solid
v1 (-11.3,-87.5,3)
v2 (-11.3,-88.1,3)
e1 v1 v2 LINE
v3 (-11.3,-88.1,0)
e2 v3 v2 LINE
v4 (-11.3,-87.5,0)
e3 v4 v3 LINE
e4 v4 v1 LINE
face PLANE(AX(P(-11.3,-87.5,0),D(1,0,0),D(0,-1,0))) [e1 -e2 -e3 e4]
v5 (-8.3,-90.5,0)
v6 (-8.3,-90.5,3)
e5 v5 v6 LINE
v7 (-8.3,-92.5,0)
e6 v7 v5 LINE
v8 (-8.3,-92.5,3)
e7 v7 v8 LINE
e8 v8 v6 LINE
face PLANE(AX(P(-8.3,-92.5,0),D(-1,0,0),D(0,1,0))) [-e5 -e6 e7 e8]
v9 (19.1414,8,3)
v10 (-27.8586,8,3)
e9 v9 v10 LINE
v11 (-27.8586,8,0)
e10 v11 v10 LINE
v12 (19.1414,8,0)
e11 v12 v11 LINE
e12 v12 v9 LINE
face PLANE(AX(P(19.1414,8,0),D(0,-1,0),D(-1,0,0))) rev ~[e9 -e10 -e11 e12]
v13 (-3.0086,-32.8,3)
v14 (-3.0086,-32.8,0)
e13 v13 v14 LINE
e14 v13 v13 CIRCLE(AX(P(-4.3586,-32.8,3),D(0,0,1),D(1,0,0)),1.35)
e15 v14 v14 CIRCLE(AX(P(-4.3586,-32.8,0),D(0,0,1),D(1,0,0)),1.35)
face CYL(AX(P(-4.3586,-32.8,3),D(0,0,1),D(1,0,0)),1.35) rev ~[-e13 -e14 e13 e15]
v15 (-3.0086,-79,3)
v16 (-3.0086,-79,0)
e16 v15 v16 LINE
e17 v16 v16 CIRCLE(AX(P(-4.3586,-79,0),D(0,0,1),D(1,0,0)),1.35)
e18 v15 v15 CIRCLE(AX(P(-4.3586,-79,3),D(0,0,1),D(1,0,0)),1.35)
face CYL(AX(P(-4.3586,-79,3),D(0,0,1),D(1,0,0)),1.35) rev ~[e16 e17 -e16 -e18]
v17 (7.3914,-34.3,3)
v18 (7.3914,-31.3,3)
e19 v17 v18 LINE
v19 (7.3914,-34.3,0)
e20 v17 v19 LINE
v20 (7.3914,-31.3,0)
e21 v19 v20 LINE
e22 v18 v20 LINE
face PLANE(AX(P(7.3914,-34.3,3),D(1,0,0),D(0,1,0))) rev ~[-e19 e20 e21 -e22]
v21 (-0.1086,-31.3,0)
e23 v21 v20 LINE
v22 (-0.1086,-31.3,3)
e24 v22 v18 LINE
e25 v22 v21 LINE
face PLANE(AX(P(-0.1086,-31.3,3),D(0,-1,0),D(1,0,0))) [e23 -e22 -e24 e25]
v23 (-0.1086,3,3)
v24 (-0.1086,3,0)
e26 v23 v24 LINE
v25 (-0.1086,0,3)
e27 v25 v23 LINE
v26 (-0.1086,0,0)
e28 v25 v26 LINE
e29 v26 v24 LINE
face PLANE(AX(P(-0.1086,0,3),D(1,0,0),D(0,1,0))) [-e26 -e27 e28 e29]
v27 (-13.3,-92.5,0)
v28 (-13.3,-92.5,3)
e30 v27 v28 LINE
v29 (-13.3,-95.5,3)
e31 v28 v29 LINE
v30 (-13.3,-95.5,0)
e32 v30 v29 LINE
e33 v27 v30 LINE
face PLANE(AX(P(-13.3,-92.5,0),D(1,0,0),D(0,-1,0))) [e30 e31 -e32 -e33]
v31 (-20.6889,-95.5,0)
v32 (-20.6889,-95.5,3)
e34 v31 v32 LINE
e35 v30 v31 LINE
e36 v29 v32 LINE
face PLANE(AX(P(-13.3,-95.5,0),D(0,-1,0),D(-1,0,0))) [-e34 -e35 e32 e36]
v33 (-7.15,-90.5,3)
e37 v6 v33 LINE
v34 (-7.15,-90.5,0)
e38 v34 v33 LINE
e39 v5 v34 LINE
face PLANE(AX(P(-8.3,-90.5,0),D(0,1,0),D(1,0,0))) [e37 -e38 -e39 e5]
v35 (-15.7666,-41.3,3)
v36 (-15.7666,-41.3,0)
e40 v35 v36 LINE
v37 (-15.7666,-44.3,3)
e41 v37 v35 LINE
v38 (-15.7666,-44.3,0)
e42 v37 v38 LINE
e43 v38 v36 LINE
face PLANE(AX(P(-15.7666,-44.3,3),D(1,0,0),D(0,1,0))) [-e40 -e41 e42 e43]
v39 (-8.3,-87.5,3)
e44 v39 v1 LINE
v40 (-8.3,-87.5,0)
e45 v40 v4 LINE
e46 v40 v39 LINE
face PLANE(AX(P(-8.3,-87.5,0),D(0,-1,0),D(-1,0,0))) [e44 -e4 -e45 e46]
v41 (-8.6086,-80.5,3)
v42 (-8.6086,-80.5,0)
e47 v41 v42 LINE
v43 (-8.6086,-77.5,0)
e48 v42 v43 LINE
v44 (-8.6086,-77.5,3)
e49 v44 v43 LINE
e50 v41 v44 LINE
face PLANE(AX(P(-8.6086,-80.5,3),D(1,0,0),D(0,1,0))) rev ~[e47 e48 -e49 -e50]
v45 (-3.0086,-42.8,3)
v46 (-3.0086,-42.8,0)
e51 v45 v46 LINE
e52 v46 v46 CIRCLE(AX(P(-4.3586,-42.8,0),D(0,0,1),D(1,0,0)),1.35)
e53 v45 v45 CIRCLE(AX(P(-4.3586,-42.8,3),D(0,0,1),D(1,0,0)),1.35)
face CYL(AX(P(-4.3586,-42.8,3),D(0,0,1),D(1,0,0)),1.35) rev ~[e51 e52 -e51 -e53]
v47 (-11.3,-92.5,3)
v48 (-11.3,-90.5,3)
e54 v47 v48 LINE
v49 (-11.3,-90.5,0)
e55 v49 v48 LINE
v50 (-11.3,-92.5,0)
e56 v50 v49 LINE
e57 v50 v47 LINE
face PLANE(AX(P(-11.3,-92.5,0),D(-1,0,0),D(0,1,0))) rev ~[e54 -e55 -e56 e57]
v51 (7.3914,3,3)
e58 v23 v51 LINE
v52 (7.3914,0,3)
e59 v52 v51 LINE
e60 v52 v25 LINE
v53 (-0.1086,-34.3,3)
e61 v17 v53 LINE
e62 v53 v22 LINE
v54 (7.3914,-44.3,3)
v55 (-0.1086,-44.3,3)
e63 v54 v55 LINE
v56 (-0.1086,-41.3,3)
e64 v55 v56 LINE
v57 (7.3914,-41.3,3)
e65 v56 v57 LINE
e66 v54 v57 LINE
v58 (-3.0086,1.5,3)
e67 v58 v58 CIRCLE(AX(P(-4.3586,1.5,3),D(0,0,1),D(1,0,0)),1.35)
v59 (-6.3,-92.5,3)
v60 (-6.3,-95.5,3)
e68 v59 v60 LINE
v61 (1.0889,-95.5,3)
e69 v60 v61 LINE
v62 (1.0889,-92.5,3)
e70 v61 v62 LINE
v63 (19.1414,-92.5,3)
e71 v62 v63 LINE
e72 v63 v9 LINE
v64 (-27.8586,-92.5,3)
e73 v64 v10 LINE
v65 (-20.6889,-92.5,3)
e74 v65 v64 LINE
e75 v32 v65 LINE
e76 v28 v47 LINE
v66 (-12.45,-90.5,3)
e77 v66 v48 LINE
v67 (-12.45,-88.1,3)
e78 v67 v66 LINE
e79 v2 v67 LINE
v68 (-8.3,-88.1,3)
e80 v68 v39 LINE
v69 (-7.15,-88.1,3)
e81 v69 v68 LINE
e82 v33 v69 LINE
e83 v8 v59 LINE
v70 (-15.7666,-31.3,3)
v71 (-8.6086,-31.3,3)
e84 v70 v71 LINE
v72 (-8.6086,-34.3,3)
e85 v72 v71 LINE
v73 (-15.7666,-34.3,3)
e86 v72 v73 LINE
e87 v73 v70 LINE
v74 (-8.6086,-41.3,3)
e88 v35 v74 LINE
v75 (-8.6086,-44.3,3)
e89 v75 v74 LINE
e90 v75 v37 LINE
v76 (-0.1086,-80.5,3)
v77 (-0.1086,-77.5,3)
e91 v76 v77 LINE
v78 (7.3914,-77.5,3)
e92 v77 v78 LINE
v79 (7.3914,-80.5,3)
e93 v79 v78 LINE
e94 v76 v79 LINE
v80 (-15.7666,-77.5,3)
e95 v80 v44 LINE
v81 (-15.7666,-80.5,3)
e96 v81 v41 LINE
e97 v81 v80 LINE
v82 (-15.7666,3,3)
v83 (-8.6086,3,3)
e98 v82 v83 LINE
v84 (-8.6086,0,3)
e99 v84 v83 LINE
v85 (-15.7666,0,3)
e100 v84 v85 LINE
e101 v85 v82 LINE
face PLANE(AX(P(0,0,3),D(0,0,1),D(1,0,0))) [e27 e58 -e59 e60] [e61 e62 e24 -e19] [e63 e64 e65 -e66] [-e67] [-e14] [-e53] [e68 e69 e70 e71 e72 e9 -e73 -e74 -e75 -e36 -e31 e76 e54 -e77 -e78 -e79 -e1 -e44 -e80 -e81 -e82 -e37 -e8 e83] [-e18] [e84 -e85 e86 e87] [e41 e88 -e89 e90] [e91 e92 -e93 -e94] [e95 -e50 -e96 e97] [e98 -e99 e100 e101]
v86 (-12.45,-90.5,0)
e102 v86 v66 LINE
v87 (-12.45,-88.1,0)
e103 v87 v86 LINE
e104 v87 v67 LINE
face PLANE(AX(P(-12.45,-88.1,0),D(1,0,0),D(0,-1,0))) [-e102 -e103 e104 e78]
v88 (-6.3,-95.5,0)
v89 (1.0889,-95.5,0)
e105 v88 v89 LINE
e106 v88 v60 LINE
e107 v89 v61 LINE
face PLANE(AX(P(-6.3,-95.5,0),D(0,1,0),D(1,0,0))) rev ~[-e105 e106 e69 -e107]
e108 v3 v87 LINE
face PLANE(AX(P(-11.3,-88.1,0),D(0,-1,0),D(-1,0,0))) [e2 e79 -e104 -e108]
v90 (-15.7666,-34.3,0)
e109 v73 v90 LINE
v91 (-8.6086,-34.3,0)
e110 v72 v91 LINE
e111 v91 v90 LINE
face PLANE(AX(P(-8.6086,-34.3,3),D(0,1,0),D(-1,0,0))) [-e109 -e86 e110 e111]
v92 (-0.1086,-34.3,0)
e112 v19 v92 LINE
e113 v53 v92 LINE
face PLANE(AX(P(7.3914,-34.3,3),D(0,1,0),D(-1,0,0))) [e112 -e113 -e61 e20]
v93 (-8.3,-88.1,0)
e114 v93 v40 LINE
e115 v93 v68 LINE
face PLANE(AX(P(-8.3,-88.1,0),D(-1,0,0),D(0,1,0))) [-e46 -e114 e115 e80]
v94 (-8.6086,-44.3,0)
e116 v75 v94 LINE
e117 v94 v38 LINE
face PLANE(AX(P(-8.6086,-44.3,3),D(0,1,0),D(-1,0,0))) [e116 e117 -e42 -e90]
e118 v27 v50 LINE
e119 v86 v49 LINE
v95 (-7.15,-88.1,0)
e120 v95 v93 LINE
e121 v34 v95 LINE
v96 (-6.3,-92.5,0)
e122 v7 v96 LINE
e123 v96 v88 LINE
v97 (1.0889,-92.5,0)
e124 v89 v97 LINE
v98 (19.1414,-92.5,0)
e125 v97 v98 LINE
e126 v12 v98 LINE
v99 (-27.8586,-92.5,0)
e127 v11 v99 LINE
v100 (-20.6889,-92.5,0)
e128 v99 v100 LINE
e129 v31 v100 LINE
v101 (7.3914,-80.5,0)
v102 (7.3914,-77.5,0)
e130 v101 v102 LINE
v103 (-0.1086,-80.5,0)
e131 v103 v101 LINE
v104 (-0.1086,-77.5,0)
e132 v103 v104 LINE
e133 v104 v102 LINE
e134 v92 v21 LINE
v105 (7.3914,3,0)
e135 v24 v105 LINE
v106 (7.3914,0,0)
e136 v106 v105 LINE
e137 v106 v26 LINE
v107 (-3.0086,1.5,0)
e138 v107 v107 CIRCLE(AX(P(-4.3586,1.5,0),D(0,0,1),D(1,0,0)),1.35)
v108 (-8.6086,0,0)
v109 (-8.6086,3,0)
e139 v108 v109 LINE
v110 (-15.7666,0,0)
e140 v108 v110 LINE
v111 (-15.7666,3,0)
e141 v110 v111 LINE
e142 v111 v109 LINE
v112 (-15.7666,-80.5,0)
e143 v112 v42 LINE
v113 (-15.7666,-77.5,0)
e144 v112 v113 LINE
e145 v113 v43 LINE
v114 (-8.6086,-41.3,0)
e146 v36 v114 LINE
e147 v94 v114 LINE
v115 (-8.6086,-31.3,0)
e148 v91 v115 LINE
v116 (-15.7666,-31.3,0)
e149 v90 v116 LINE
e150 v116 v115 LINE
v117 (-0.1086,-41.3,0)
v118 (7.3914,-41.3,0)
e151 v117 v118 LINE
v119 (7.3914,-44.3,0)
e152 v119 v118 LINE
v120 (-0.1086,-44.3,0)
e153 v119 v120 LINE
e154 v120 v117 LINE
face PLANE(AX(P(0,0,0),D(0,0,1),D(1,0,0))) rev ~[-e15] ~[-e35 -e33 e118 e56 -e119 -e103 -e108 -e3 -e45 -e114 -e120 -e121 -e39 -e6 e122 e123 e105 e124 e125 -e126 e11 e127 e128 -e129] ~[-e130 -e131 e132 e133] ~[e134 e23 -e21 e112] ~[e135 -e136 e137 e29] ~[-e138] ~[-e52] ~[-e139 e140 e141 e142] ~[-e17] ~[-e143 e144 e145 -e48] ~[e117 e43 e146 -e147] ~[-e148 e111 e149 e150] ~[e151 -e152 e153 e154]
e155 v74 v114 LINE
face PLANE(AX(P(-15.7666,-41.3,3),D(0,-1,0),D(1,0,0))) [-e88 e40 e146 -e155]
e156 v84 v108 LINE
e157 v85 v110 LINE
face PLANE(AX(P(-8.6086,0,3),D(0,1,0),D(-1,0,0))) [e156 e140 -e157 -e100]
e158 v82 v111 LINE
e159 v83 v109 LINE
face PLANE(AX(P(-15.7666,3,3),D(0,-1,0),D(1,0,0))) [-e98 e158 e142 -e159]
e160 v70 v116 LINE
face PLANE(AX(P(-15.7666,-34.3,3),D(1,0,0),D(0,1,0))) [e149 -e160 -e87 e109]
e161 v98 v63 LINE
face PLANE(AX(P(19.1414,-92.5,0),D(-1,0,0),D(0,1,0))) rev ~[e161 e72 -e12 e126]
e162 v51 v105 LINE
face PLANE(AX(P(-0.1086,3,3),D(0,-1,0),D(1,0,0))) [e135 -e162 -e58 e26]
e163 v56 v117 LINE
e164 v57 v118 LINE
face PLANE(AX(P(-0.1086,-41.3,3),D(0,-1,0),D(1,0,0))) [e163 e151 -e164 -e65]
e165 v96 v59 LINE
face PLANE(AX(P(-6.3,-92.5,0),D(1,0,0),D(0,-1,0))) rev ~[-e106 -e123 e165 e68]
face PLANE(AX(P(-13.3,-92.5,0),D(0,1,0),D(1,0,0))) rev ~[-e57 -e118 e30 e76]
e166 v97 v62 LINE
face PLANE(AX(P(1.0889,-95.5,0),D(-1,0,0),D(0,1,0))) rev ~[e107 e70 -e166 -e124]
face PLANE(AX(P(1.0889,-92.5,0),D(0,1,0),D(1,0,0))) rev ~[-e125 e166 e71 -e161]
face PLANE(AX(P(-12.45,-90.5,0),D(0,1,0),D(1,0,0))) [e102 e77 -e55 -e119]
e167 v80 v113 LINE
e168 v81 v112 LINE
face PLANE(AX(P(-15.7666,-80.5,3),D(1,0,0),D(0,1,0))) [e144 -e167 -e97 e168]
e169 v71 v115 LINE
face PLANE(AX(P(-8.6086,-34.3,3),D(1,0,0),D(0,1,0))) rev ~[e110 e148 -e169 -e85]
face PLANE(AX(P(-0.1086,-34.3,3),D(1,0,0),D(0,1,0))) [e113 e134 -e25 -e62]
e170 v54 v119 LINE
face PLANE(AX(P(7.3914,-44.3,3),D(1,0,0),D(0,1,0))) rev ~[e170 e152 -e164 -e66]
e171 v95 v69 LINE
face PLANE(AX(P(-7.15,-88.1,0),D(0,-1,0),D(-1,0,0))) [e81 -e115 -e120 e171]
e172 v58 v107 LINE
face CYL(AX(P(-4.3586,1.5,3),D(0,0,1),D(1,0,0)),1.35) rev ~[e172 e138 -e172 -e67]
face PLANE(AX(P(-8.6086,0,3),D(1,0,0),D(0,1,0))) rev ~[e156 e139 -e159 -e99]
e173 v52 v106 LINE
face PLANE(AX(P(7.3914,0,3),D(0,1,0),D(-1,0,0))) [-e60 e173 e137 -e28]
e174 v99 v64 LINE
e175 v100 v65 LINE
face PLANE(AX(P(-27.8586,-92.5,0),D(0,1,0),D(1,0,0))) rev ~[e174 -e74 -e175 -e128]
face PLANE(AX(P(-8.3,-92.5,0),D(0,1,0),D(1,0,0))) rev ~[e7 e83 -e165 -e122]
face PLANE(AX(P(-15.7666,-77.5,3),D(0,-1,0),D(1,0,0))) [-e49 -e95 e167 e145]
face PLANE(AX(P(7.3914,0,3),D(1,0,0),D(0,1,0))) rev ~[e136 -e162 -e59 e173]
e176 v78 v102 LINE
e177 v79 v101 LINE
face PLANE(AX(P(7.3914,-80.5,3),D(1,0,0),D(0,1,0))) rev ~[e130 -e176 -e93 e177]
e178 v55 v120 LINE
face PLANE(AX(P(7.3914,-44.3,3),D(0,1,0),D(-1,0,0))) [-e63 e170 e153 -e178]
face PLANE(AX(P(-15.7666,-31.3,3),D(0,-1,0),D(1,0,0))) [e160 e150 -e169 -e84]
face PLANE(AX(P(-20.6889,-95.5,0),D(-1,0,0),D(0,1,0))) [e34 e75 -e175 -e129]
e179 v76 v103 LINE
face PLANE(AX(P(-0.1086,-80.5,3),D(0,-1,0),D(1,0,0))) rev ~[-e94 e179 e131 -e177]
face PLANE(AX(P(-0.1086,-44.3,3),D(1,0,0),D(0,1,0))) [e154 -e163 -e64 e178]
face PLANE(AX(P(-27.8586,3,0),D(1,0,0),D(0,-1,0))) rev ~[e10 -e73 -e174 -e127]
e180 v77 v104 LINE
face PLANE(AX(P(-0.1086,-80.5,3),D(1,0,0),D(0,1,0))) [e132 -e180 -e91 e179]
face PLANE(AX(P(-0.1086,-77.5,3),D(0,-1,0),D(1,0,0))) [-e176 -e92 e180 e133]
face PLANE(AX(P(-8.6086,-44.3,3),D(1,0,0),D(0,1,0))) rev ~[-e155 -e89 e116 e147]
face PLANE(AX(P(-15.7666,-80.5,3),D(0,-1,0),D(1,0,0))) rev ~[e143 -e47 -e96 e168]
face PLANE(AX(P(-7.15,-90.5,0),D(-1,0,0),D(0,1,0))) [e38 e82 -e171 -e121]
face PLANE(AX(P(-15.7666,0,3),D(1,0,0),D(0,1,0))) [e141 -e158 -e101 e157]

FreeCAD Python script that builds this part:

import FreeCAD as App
import Part
import Sketcher

V = App.Vector
Q = App.Units.Quantity


def add_polygon(sketch, points):
    """Adds a closed chain of lines whose ends are joined by coincident constraints."""
    first, n = sketch.GeometryCount, len(points)
    for a, b in zip(points, points[1:] + points[:1]):
        sketch.addGeometry(Part.LineSegment(App.Vector(*a, 0), App.Vector(*b, 0)), False)
    for i in range(n):
        sketch.addConstraint(Sketcher.Constraint("Coincident", first + i, 2, first + (i + 1) % n, 1))

doc = App.newDocument("Part")
body = doc.addObject("PartDesign::Body", "Body")

# Sketch on XY plane
sketch1 = body.newObject("Sketcher::SketchObject", "Sketch")
sketch1.AttachmentSupport = (doc.getObject("XY_Plane"), [""])
sketch1.MapMode = "FlatFace"
add_polygon(sketch1, [(-27.9, -92.5), (-20.7, -92.5), (-20.7, -95.5), (-13.3, -95.5), (-13.3, -92.5), (-11.3, -92.5), (-11.3, -90.5), (-12.4, -90.5), (-12.4, -88.1), (-11.3, -88.1), (-11.3, -87.5), (-8.3, -87.5), (-8.3, -88.1), (-7.2, -88.1), (-7.2, -90.5), (-8.3, -90.5), (-8.3, -92.5), (-6.3, -92.5), (-6.3, -95.5), (1.1, -95.5), (1.1, -92.5), (19.1, -92.5), (19.1, 8), (-27.9, 8)])  # lines 0-23
sketch1.addConstraint([
    Sketcher.Constraint("Horizontal", 0),
    Sketcher.Constraint("Vertical", 1),
    Sketcher.Constraint("Horizontal", 2),
    Sketcher.Constraint("Vertical", 3),
    Sketcher.Constraint("Horizontal", 4),
    Sketcher.Constraint("Vertical", 5),
    Sketcher.Constraint("Horizontal", 6),
    Sketcher.Constraint("Vertical", 7),
    Sketcher.Constraint("Horizontal", 8),
    Sketcher.Constraint("Vertical", 9),
    Sketcher.Constraint("Horizontal", 10),
    Sketcher.Constraint("Vertical", 11),
    Sketcher.Constraint("Horizontal", 12),
    Sketcher.Constraint("Vertical", 13),
    Sketcher.Constraint("Horizontal", 14),
    Sketcher.Constraint("Vertical", 15),
    Sketcher.Constraint("Horizontal", 16),
    Sketcher.Constraint("Vertical", 17),
    Sketcher.Constraint("Horizontal", 18),
    Sketcher.Constraint("Vertical", 19),
    Sketcher.Constraint("Horizontal", 20),
    Sketcher.Constraint("Vertical", 21),
    Sketcher.Constraint("Horizontal", 22),
    Sketcher.Constraint("Vertical", 23),
    Sketcher.Constraint("Horizontal", 0, 2, 3, 2),
    Sketcher.Constraint("Horizontal", 8, 2, 11, 2),
    Sketcher.Constraint("Horizontal", 6, 2, 13, 2),
    Sketcher.Constraint("Horizontal", 4, 2, 15, 2),
    Sketcher.Constraint("Horizontal", 2, 2, 17, 2),
    Sketcher.Constraint("Horizontal", 16, 2, 19, 2),
    Sketcher.Constraint("Vertical", 5, 2, 8, 2),
    Sketcher.Constraint("Vertical", 11, 2, 14, 2),
    Sketcher.Constraint("Equal", 8, 12),
    Sketcher.Constraint("Equal", 4, 16),
    Sketcher.Constraint("Equal", 2, 18),
    Sketcher.Constraint("Equal", 10, 1),
    Sketcher.Constraint("Equal", 16, 5),
    Sketcher.Constraint("DistanceX", 10, 1, 10, 2, Q("3 mm")),
    Sketcher.Constraint("DistanceY", 7, 1, 7, 2, Q("2.4 mm")),
    Sketcher.Constraint("DistanceY", -1, 1, 21, 2, Q("8 mm")),
    Sketcher.Constraint("DistanceY", 2, 2, 5, 2, Q("5 mm")),
    Sketcher.Constraint("DistanceY", 5, 2, 9, 2, Q("3 mm")),
    Sketcher.Constraint("DistanceX", 22, 2, 22, 1, Q("47 mm")),
    Sketcher.Constraint("DistanceY", 21, 1, 21, 2, Q("100.5 mm")),
    Sketcher.Constraint("DistanceX", 6, 2, 6, 1, Q("1.15 mm")),
    Sketcher.Constraint("DistanceX", 2, 2, -1, 1, Q("13.3 mm")),
    Sketcher.Constraint("DistanceX", 2, 1, 2, 2, Q("7.389 mm")),
    Sketcher.Constraint("DistanceX", 0, 1, 0, 2, Q("7.1697 mm")),
])
pad1 = body.newObject("PartDesign::Pad", "Pad")
pad1.Profile = sketch1
pad1.Length = 3

# Sketch on XY plane
sketch2 = body.newObject("Sketcher::SketchObject", "Sketch001")
sketch2.AttachmentSupport = (doc.getObject("XY_Plane"), [""])
sketch2.MapMode = "FlatFace"
sketch2.AttachmentOffset = App.Placement(V(0, 0, 3), App.Rotation())
add_polygon(sketch2, [(-0.1, 0), (7.4, 0), (7.4, 3), (-0.1, 3)])  # lines 0-3
add_polygon(sketch2, [(-15.8, 0), (-8.6, 0), (-8.6, 3), (-15.8, 3)])  # lines 4-7
add_polygon(sketch2, [(-0.1, -34.3), (7.4, -34.3), (7.4, -31.3), (-0.1, -31.3)])  # lines 8-11
add_polygon(sketch2, [(-15.8, -34.3), (-8.6, -34.3), (-8.6, -31.3), (-15.8, -31.3)])  # lines 12-15
add_polygon(sketch2, [(-0.1, -44.3), (7.4, -44.3), (7.4, -41.3), (-0.1, -41.3)])  # lines 16-19
add_polygon(sketch2, [(-15.8, -44.3), (-8.6, -44.3), (-8.6, -41.3), (-15.8, -41.3)])  # lines 20-23
add_polygon(sketch2, [(-0.1, -77.5), (-0.1, -80.5), (7.4, -80.5), (7.4, -77.5)])  # lines 24-27
add_polygon(sketch2, [(-15.8, -77.5), (-15.8, -80.5), (-8.6, -80.5), (-8.6, -77.5)])  # lines 28-31
sketch2.addGeometry(Part.Circle(V(-4.4, 1.5, 0), V(0, 0, 1), 1.4), False)  # 32
sketch2.addGeometry(Part.Circle(V(-4.4, -32.8, 0), V(0, 0, 1), 1.4), False)  # 33
sketch2.addGeometry(Part.Circle(V(-4.4, -42.8, 0), V(0, 0, 1), 1.4), False)  # 34
sketch2.addGeometry(Part.Circle(V(-4.4, -79, 0), V(0, 0, 1), 1.4), False)  # 35
sketch2.addConstraint([
    Sketcher.Constraint("Horizontal", 0),
    Sketcher.Constraint("Vertical", 1),
    Sketcher.Constraint("Horizontal", 2),
    Sketcher.Constraint("Vertical", 3),
    Sketcher.Constraint("Horizontal", 4),
    Sketcher.Constraint("Vertical", 5),
    Sketcher.Constraint("Horizontal", 6),
    Sketcher.Constraint("Vertical", 7),
    Sketcher.Constraint("Horizontal", 8),
    Sketcher.Constraint("Vertical", 9),
    Sketcher.Constraint("Horizontal", 10),
    Sketcher.Constraint("Vertical", 11),
    Sketcher.Constraint("Horizontal", 12),
    Sketcher.Constraint("Vertical", 13),
    Sketcher.Constraint("Horizontal", 14),
    Sketcher.Constraint("Vertical", 15),
    Sketcher.Constraint("Horizontal", 16),
    Sketcher.Constraint("Vertical", 17),
    Sketcher.Constraint("Horizontal", 18),
    Sketcher.Constraint("Vertical", 19),
    Sketcher.Constraint("Horizontal", 20),
    Sketcher.Constraint("Vertical", 21),
    Sketcher.Constraint("Horizontal", 22),
    Sketcher.Constraint("Vertical", 23),
    Sketcher.Constraint("Vertical", 24),
    Sketcher.Constraint("Horizontal", 25),
    Sketcher.Constraint("Vertical", 26),
    Sketcher.Constraint("Horizontal", 27),
    Sketcher.Constraint("Vertical", 28),
    Sketcher.Constraint("Horizontal", 29),
    Sketcher.Constraint("Vertical", 30),
    Sketcher.Constraint("Horizontal", 31),
    Sketcher.Constraint("Equal", 32, 33),
    Sketcher.Constraint("Equal", 33, 34),
    Sketcher.Constraint("Equal", 34, 35),
    Sketcher.Constraint("PointOnObject", 0, 2, -1),
    Sketcher.Constraint("PointOnObject", 4, 2, -1),
    Sketcher.Constraint("Horizontal", 2, 2, 5, 2),
    Sketcher.Constraint("Horizontal", 11, 2, 12, 2),
    Sketcher.Constraint("Horizontal", 10, 2, 13, 2),
    Sketcher.Constraint("Horizontal", 19, 2, 20, 2),
    Sketcher.Constraint("Horizontal", 18, 2, 21, 2),
    Sketcher.Constraint("Horizontal", 25, 2, 28, 2),
    Sketcher.Constraint("Horizontal", 27, 2, 30, 2),
    Sketcher.Constraint("Vertical", 32, 3, 33, 3),
    Sketcher.Constraint("Vertical", 33, 3, 34, 3),
    Sketcher.Constraint("Vertical", 34, 3, 35, 3),
    Sketcher.Constraint("Vertical", 1, 2, 8, 2),
    Sketcher.Constraint("Vertical", 3, 2, 10, 2),
    Sketcher.Constraint("Vertical", 5, 2, 12, 2),
    Sketcher.Constraint("Vertical", 7, 2, 14, 2),
    Sketcher.Constraint("Vertical", 9, 2, 16, 2),
    Sketcher.Constraint("Vertical", 11, 2, 18, 2),
    Sketcher.Constraint("Vertical", 13, 2, 20, 2),
    Sketcher.Constraint("Vertical", 15, 2, 22, 2),
    Sketcher.Constraint("Vertical", 19, 2, 24, 2),
    Sketcher.Constraint("Vertical", 17, 2, 25, 2),
    Sketcher.Constraint("Vertical", 23, 2, 28, 2),
    Sketcher.Constraint("Vertical", 21, 2, 29, 2),
    Sketcher.Constraint("Equal", 7, 9),
    Sketcher.Constraint("Equal", 15, 17),
    Sketcher.Constraint("Equal", 23, 24),
    Sketcher.Constraint("Diameter", 32, Q("2.7 mm")),
    Sketcher.Constraint("DistanceY", 1, 1, 1, 2, Q("3 mm")),
    Sketcher.Constraint("DistanceX", 0, 1, 0, 2, Q("7.5 mm")),
    Sketcher.Constraint("DistanceY", 35, 3, -1, 1, Q("79 mm")),
    Sketcher.Constraint("DistanceY", 34, 3, 33, 3, Q("10 mm")),
    Sketcher.Constraint("DistanceX", 4, 2, 0, 2, Q("16 mm")),
    Sketcher.Constraint("DistanceY", 16, 2, 8, 2, Q("10 mm")),
    Sketcher.Constraint("DistanceY", -1, 1, 32, 3, Q("1.5 mm")),
    Sketcher.Constraint("DistanceY", 33, 3, -1, 1, Q("32.8 mm")),
    Sketcher.Constraint("DistanceY", 8, 2, -1, 1, Q("34.3 mm")),
    Sketcher.Constraint("DistanceY", 24, 2, -1, 1, Q("80.5 mm")),
    Sketcher.Constraint("DistanceX", 4, 1, 4, 2, Q("7.158 mm")),
    Sketcher.Constraint("DistanceX", 32, 3, 0, 2, Q("11.75 mm")),
    Sketcher.Constraint("DistanceX", 32, 3, -1, 1, Q("4.3586 mm")),
])
pocket1 = body.newObject("PartDesign::Pocket", "Pocket")
pocket1.Profile = sketch2
pocket1.Length = 3

doc.recompute()
